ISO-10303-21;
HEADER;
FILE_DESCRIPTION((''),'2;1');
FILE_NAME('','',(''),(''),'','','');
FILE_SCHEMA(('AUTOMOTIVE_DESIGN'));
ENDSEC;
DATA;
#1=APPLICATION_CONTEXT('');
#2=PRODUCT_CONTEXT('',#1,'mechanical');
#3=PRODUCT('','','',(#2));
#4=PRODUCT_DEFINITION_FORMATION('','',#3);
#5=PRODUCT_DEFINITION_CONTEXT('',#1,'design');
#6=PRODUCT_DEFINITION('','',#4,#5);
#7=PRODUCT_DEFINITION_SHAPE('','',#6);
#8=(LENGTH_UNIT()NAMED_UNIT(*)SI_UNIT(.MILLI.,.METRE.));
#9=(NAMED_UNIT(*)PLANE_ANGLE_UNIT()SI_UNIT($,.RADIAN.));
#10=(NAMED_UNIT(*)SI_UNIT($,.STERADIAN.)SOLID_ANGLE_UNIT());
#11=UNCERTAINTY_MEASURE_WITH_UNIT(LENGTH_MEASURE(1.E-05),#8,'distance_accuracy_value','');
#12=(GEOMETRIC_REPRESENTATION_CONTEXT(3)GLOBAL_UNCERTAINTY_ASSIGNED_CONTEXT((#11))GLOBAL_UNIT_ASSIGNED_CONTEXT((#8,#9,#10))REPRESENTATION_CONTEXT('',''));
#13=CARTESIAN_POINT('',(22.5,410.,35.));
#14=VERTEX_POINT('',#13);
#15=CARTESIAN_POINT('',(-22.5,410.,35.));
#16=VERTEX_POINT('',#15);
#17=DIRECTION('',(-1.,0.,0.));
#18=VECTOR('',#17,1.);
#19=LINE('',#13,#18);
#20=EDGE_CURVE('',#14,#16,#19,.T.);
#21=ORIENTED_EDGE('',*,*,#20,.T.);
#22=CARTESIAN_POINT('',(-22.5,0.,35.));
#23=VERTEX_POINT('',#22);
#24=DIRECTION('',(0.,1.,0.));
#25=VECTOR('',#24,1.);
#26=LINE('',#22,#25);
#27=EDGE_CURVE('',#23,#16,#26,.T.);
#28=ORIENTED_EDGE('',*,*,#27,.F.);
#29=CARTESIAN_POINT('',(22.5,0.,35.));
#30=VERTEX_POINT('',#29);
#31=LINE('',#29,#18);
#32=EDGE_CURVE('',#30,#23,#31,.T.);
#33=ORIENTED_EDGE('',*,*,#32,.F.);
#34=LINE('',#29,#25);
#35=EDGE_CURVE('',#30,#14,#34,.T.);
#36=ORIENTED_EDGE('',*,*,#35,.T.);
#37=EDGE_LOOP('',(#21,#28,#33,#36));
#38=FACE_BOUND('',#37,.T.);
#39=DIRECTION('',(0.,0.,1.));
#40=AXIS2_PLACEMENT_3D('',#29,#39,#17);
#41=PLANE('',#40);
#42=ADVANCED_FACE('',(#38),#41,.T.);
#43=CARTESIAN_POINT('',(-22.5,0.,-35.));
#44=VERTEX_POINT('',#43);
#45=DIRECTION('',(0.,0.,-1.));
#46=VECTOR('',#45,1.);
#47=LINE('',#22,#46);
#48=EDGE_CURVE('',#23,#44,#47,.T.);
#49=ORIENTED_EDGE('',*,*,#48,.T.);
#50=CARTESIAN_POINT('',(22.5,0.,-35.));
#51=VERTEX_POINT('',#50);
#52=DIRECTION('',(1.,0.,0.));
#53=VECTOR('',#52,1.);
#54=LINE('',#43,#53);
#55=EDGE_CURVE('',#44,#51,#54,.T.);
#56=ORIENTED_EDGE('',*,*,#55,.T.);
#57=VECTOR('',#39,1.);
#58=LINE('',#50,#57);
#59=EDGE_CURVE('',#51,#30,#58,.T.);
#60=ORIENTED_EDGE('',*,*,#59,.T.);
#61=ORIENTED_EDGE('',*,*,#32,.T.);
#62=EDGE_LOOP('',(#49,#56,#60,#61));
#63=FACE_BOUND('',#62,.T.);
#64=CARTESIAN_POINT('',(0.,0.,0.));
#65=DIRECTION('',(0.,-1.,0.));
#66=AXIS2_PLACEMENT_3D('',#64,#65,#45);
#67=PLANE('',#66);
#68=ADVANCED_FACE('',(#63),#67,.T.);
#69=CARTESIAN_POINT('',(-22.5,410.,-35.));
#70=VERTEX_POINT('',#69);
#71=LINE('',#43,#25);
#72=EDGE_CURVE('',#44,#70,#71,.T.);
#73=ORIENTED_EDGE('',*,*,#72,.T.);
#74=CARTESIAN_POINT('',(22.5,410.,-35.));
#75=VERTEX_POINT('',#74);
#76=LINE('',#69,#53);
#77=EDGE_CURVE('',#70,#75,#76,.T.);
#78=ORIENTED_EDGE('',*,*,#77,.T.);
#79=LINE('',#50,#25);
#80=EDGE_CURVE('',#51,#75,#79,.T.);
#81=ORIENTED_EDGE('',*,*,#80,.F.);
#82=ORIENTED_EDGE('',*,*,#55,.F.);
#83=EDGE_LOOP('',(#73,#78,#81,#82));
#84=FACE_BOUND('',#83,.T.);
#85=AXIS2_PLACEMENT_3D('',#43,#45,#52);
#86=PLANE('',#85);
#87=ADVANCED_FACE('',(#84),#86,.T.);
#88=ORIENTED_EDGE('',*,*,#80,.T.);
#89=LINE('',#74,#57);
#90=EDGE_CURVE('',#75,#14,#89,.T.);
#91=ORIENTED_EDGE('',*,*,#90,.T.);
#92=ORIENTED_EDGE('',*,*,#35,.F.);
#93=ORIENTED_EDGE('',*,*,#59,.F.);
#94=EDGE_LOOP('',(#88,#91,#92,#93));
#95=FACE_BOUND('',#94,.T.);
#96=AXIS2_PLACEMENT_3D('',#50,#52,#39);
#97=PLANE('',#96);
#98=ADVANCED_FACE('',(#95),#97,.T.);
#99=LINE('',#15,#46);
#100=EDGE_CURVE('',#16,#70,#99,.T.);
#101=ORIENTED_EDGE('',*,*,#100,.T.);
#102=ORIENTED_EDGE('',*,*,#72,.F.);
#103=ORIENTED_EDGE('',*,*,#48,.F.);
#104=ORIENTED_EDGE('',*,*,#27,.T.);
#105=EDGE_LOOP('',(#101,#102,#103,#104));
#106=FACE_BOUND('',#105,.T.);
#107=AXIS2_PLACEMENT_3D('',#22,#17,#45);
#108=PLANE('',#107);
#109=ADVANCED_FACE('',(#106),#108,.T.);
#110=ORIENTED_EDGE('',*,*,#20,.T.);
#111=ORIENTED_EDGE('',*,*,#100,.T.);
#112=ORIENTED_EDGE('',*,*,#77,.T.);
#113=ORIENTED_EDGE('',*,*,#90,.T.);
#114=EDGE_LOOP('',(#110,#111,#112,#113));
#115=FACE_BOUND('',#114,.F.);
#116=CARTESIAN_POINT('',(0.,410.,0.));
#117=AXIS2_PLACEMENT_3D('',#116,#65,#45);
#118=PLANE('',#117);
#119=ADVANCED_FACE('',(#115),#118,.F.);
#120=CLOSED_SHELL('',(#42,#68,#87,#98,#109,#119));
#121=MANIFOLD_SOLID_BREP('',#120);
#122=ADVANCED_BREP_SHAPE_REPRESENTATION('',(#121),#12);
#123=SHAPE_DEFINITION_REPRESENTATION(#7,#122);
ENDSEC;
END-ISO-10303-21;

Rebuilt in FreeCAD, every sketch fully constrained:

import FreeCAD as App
import Part
import Sketcher


def add_polygon(sketch, points):
    """Adds a closed chain of lines whose ends are joined by coincident constraints."""
    first, n = sketch.GeometryCount, len(points)
    for a, b in zip(points, points[1:] + points[:1]):
        sketch.addGeometry(Part.LineSegment(App.Vector(*a, 0), App.Vector(*b, 0)), False)
    for i in range(n):
        sketch.addConstraint(Sketcher.Constraint("Coincident", first + i, 2, first + (i + 1) % n, 1))

doc = App.newDocument("Part")
params = doc.addObject("Spreadsheet::Sheet", "Params")
for row, (alias, value) in enumerate([
    ("sketch1_width", "45 mm"),
    ("sketch1_height", "70 mm"),
    ("pad1_length", "410 mm"),
], start=1):
    params.set(f"A{row}", alias)
    params.set(f"B{row}", "=" + value)
    params.setAlias(f"B{row}", alias)

body = doc.addObject("PartDesign::Body", "Body")

# Sketch on XZ plane
sketch1 = body.newObject("Sketcher::SketchObject", "Sketch")
sketch1.AttachmentSupport = (doc.getObject("XZ_Plane"), [""])
sketch1.MapMode = "FlatFace"
add_polygon(sketch1, [(-22, 35), (-22, -35), (22, -35), (22, 35)])  # lines 0-3
sketch1.addConstraint([
    Sketcher.Constraint("Vertical", 0),
    Sketcher.Constraint("Horizontal", 1),
    Sketcher.Constraint("Vertical", 2),
    Sketcher.Constraint("Horizontal", 3),
    Sketcher.Constraint("Symmetric", 0, 2, 2, 2, -1, 1),
    Sketcher.Constraint("DistanceX", 1, 1, 1, 2, 45.0),
    Sketcher.Constraint("DistanceY", 0, 2, 0, 1, 70.0),
])
sketch1.setExpression("Constraints[9]", "Params.sketch1_width")
sketch1.setExpression("Constraints[10]", "Params.sketch1_height")
pad1 = body.newObject("PartDesign::Pad", "Pad")
pad1.Profile = sketch1
pad1.setExpression("Length", "Params.pad1_length")
pad1.Reversed = True

doc.recompute()
